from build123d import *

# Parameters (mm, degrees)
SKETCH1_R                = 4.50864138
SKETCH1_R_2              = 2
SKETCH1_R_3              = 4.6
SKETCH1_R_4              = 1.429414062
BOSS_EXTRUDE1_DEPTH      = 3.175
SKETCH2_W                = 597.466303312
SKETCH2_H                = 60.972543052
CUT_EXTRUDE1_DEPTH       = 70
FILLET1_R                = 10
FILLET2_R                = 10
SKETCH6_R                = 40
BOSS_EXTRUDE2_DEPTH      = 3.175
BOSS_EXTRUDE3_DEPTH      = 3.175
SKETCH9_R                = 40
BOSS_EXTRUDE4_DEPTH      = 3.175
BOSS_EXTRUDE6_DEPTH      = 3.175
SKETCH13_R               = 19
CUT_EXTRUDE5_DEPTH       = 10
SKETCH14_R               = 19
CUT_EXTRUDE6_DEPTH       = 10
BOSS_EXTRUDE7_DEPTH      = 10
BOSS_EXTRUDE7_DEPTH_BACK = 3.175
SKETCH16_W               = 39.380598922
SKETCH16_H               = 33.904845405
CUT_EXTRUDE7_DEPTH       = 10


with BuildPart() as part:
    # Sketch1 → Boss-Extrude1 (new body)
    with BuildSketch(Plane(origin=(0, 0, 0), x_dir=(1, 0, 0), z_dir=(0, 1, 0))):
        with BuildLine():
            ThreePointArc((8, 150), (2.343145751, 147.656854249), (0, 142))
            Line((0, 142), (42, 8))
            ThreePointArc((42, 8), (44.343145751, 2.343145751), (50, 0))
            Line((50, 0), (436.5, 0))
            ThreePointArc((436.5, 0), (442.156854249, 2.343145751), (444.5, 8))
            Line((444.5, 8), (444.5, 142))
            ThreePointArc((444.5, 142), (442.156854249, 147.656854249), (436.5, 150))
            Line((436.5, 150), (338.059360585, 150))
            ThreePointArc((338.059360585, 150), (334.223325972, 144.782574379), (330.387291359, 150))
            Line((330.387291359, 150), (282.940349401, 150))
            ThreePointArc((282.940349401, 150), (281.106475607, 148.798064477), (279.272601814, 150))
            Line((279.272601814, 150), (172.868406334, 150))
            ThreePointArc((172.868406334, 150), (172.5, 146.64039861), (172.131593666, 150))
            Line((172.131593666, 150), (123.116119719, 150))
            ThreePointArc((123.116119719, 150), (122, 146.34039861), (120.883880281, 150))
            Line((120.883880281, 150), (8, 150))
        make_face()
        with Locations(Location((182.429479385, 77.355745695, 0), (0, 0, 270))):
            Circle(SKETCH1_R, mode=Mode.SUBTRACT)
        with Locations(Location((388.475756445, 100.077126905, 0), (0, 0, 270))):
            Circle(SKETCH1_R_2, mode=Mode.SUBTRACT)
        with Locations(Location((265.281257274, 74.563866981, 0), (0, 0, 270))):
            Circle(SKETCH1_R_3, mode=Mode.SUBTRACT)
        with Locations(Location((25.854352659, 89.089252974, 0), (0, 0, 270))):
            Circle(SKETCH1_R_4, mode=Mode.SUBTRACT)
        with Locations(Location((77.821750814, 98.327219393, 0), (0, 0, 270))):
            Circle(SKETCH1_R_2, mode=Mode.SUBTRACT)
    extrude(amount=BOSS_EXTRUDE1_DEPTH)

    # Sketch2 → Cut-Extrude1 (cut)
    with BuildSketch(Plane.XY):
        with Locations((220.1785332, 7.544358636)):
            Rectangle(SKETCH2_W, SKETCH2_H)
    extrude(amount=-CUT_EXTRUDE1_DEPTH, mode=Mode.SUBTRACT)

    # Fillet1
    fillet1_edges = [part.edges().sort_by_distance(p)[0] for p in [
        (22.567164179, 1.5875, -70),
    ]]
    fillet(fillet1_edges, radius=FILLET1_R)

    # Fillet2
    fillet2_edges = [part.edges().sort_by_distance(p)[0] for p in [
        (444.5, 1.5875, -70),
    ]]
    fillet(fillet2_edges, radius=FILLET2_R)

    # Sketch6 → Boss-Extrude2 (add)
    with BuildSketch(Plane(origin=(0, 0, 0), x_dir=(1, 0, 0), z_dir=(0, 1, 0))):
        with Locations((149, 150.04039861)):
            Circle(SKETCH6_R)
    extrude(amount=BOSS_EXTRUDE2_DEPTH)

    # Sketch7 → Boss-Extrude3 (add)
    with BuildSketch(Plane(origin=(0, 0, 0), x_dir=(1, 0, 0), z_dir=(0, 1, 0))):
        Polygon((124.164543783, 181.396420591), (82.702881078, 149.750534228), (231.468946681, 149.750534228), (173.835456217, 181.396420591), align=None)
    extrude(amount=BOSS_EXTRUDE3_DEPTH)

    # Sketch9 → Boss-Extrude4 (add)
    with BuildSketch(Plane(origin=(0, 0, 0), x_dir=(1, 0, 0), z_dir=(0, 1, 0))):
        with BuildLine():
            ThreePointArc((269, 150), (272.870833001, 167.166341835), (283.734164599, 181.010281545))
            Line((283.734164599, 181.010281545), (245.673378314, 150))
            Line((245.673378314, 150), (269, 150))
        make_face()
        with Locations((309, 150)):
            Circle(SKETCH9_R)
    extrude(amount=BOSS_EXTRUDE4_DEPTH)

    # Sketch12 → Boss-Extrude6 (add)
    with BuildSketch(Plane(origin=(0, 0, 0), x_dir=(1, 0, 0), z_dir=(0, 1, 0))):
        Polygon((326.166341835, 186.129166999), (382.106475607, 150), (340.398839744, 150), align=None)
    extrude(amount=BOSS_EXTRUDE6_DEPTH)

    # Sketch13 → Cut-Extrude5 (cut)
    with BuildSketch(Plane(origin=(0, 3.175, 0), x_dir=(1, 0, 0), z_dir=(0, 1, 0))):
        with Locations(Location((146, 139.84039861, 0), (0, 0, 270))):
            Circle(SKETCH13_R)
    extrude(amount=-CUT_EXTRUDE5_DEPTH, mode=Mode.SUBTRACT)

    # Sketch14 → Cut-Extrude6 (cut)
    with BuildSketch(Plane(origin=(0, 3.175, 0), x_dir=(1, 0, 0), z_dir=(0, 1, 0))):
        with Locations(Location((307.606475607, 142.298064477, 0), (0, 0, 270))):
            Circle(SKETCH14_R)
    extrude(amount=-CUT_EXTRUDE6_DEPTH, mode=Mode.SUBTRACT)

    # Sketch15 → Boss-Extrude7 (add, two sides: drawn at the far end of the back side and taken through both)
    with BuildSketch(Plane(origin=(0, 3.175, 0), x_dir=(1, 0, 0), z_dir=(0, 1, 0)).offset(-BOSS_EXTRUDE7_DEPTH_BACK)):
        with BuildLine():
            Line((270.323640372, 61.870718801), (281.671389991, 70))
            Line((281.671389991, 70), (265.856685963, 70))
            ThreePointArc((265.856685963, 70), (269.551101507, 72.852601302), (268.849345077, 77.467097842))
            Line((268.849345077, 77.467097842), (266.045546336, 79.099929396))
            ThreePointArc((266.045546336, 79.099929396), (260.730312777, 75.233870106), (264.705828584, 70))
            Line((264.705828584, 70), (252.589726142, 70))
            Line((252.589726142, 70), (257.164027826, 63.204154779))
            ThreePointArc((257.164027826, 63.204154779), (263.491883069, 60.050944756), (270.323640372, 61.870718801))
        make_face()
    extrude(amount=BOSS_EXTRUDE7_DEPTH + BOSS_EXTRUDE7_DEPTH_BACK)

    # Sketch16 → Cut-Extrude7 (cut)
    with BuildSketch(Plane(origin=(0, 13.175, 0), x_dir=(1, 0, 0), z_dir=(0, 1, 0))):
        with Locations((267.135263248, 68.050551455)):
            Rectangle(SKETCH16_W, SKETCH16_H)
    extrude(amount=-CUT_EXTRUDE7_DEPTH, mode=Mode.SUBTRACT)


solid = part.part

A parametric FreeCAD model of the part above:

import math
import FreeCAD as App
import Part
import Sketcher
Q = App.Units.Quantity


def edges_at(feature, points):
    """Names of the edges that pass closest to the given points."""
    edges = feature.Shape.Edges
    near = lambda p: min(range(len(edges)), key=lambda i: edges[i].distToShape(Part.Vertex(*p))[0])
    return sorted({f"Edge{near(p) + 1}" for p in points})


def add_polygon(sketch, points):
    """Adds a closed chain of lines whose ends are joined by coincident constraints."""
    first, n = sketch.GeometryCount, len(points)
    for a, b in zip(points, points[1:] + points[:1]):
        sketch.addGeometry(Part.LineSegment(App.Vector(*a, 0), App.Vector(*b, 0)), False)
    for i in range(n):
        sketch.addConstraint(Sketcher.Constraint("Coincident", first + i, 2, first + (i + 1) % n, 1))

doc = App.newDocument("Part")
body = doc.addObject("PartDesign::Body", "Body")

# Sketch on XZ plane
sketch1 = body.newObject("Sketcher::SketchObject", "Sketch")
sketch1.AttachmentSupport = (doc.getObject("XZ_Plane"), [""])
sketch1.MapMode = "FlatFace"
sketch1.addGeometry([
    Part.ArcOfCircle(Part.Circle(App.Vector(8, -142, 0), App.Vector(0, 0, 1), 8), math.radians(-180), math.radians(-90)),  # 0
    Part.LineSegment(App.Vector(0, -142, 0), App.Vector(42, -8, 0)),  # 1
    Part.ArcOfCircle(Part.Circle(App.Vector(50, -8, 0), App.Vector(0, 0, 1), 8), math.radians(90), math.radians(180)),  # 2
    Part.LineSegment(App.Vector(50, 0, 0), App.Vector(436.5, 0, 0)),  # 3
    Part.ArcOfCircle(Part.Circle(App.Vector(436.5, -8, 0), App.Vector(0, 0, 1), 8), math.radians(0), math.radians(90)),  # 4
    Part.LineSegment(App.Vector(444.5, -8, 0), App.Vector(444.5, -142, 0)),  # 5
    Part.ArcOfCircle(Part.Circle(App.Vector(436.5, -142, 0), App.Vector(0, 0, 1), 8), math.radians(-90), math.radians(0)),  # 6
    Part.LineSegment(App.Vector(436.5, -150, 0), App.Vector(338.1, -150, 0)),  # 7
    Part.ArcOfCircle(Part.Circle(App.Vector(334.2, -148.8, 0), App.Vector(0, 0, 1), 4), math.radians(-17), math.radians(197)),  # 8
    Part.LineSegment(App.Vector(330.4, -150, 0), App.Vector(282.9, -150, 0)),  # 9
    Part.ArcOfCircle(Part.Circle(App.Vector(281.1, -150.8, 0), App.Vector(0, 0, 1), 2), math.radians(24), math.radians(156)),  # 10
    Part.LineSegment(App.Vector(279.3, -150, 0), App.Vector(172.9, -150, 0)),  # 11
    Part.ArcOfCircle(Part.Circle(App.Vector(172.5, -148.3, 0), App.Vector(0, 0, 1), 1.7), math.radians(-77), math.radians(257)),  # 12
    Part.LineSegment(App.Vector(172.1, -150, 0), App.Vector(123.1, -150, 0)),  # 13
    Part.ArcOfCircle(Part.Circle(App.Vector(122, -148.3, 0), App.Vector(0, 0, 1), 2), math.radians(-56), math.radians(236)),  # 14
    Part.LineSegment(App.Vector(120.9, -150, 0), App.Vector(8, -150, 0)),  # 15
    Part.Circle(App.Vector(182.4, -77.4, 0), App.Vector(0, 0, 1), 4.5),  # 16
    Part.Circle(App.Vector(265.3, -74.6, 0), App.Vector(0, 0, 1), 4.6),  # 17
    Part.Circle(App.Vector(25.9, -89.1, 0), App.Vector(0, 0, 1), 1.4),  # 18
    Part.Circle(App.Vector(77.8, -98.3, 0), App.Vector(0, 0, 1), 2),  # 19
    Part.Circle(App.Vector(388.5, -100.1, 0), App.Vector(0, 0, 1), 2),  # 20
], False)
sketch1.addConstraint([
    Sketcher.Constraint("Coincident", 0, 1, 1, 1),
    Sketcher.Constraint("Coincident", 1, 2, 2, 2),
    Sketcher.Constraint("Tangent", 2, 1, 3, 1),
    Sketcher.Constraint("Tangent", 3, 2, 4, 2),
    Sketcher.Constraint("Tangent", 4, 1, 5, 1),
    Sketcher.Constraint("Tangent", 5, 2, 6, 2),
    Sketcher.Constraint("Tangent", 6, 1, 7, 1),
    Sketcher.Constraint("Coincident", 7, 2, 8, 1),
    Sketcher.Constraint("Coincident", 8, 2, 9, 1),
    Sketcher.Constraint("Coincident", 9, 2, 10, 1),
    Sketcher.Constraint("Coincident", 10, 2, 11, 1),
    Sketcher.Constraint("Coincident", 11, 2, 12, 1),
    Sketcher.Constraint("Coincident", 12, 2, 13, 1),
    Sketcher.Constraint("Coincident", 13, 2, 14, 1),
    Sketcher.Constraint("Coincident", 14, 2, 15, 1),
    Sketcher.Constraint("Tangent", 15, 2, 0, 2),
    Sketcher.Constraint("Horizontal", 3),
    Sketcher.Constraint("Vertical", 5),
    Sketcher.Constraint("Horizontal", 7),
    Sketcher.Constraint("Horizontal", 9),
    Sketcher.Constraint("Horizontal", 11),
    Sketcher.Constraint("Horizontal", 13),
    Sketcher.Constraint("Horizontal", 15),
    Sketcher.Constraint("Equal", 0, 2),
    Sketcher.Constraint("Equal", 2, 4),
    Sketcher.Constraint("Equal", 4, 6),
    Sketcher.Constraint("Equal", 10, 14),
    Sketcher.Constraint("Equal", 14, 19),
    Sketcher.Constraint("Equal", 19, 20),
    Sketcher.Constraint("PointOnObject", 0, 1, -2),
    Sketcher.Constraint("PointOnObject", 2, 1, -1),
    Sketcher.Constraint("Horizontal", 0, 3, 6, 3),
    Sketcher.Constraint("Horizontal", 12, 3, 14, 3),
    Sketcher.Constraint("Horizontal", 6, 3, 0, 1),
    Sketcher.Constraint("Horizontal", 4, 3, 1, 2),
    Sketcher.Constraint("Horizontal", 7, 2, 8, 2),
    Sketcher.Constraint("Horizontal", 9, 2, 10, 2),
    Sketcher.Constraint("Horizontal", 11, 2, 12, 2),
    Sketcher.Constraint("Diameter", 19, Q("4 mm")),
    Sketcher.Constraint("Radius", 0, Q("8 mm")),
    Sketcher.Constraint("Diameter", 17, Q("9.2 mm")),
    Sketcher.Constraint("Radius", 12, Q("1.7 mm")),
    Sketcher.Constraint("DistanceY", 5, 2, 5, 1, Q("134 mm")),
    Sketcher.Constraint("DistanceX", 3, 1, 3, 2, Q("386.5 mm")),
    Sketcher.Constraint("DistanceX", -1, 1, 2, 3, Q("50 mm")),
    Sketcher.Constraint("DistanceX", -1, 1, 14, 3, Q("122 mm")),
    Sketcher.Constraint("DistanceX", 12, 3, 6, 3, Q("264 mm")),
    Sketcher.Constraint("Diameter", 18, Q("2.858828 mm")),
    Sketcher.Constraint("Diameter", 16, Q("9.017283 mm")),
    Sketcher.Constraint("Radius", 8, Q("4.018907 mm")),
    Sketcher.Constraint("DistanceX", 7, 2, 7, 1, Q("98.440639 mm")),
    Sketcher.Constraint("DistanceX", 9, 2, 9, 1, Q("47.446942 mm")),
    Sketcher.Constraint("DistanceX", 15, 2, 15, 1, Q("112.88388 mm")),
    Sketcher.Constraint("DistanceX", -1, 1, 10, 2, Q("279.272602 mm")),
    Sketcher.Constraint("DistanceX", 18, 3, 19, 3, Q("51.967398 mm")),
    Sketcher.Constraint("DistanceX", 17, 3, 20, 3, Q("123.194499 mm")),
    Sketcher.Constraint("DistanceY", 8, 3, -1, 1, Q("148.801481 mm")),
    Sketcher.Constraint("DistanceX", -1, 1, 16, 3, Q("182.429479 mm")),
    Sketcher.Constraint("DistanceX", -1, 1, 19, 3, Q("77.821751 mm")),
    Sketcher.Constraint("DistanceY", 19, 3, -1, 1, Q("98.327219 mm")),
    Sketcher.Constraint("DistanceY", 10, 3, 16, 3, Q("73.442319 mm")),
    Sketcher.Constraint("DistanceX", 17, 3, 10, 3, Q("15.825218 mm")),
    Sketcher.Constraint("DistanceY", 16, 3, 17, 3, Q("2.791879 mm")),
    Sketcher.Constraint("DistanceY", 20, 3, 17, 3, Q("25.51326 mm")),
    Sketcher.Constraint("DistanceY", 18, 3, -1, 1, Q("89.089253 mm")),
])
pad1 = body.newObject("PartDesign::Pad", "Pad")
pad1.Profile = sketch1
pad1.Length = 3.175
pad1.Reversed = True

# Sketch on XY plane
sketch2 = body.newObject("Sketcher::SketchObject", "Sketch001")
sketch2.AttachmentSupport = (doc.getObject("XY_Plane"), [""])
sketch2.MapMode = "FlatFace"
add_polygon(sketch2, [(-79, 38), (-79, -23), (519, -23), (519, 38)])  # lines 0-3
sketch2.addConstraint([
    Sketcher.Constraint("Vertical", 0),
    Sketcher.Constraint("Horizontal", 1),
    Sketcher.Constraint("Vertical", 2),
    Sketcher.Constraint("Horizontal", 3),
    Sketcher.Constraint("DistanceX", 1, 1, 1, 2, Q("597.466303 mm")),
    Sketcher.Constraint("DistanceY", 0, 2, 0, 1, Q("60.972543 mm")),
    Sketcher.Constraint("DistanceX", 0, 2, -1, 1, Q("78.554618 mm")),
    Sketcher.Constraint("DistanceY", -1, 1, 2, 2, Q("38.03063 mm")),
])
pocket1 = body.newObject("PartDesign::Pocket", "Pocket")
pocket1.Profile = sketch2
pocket1.Length = 70
doc.recompute()

fillet = body.newObject("PartDesign::Fillet", "Fillet")
fillet.Base = (pocket1, edges_at(pocket1, [(22.567, 1.587, -70)]))
fillet.Radius = 10
doc.recompute()

fillet2 = body.newObject("PartDesign::Fillet", "Fillet001")
fillet2.Base = (fillet, edges_at(fillet, [(444.5, 1.587, -70)]))
fillet2.Radius = 10

# Sketch on XZ plane
sketch3 = body.newObject("Sketcher::SketchObject", "Sketch002")
sketch3.AttachmentSupport = (doc.getObject("XZ_Plane"), [""])
sketch3.MapMode = "FlatFace"
sketch3.addGeometry(Part.Circle(App.Vector(149, -150, 0), App.Vector(0, 0, 1), 40), False)
sketch3.addConstraint([
    Sketcher.Constraint("Diameter", 0, Q("80 mm")),
    Sketcher.Constraint("DistanceX", -1, 1, 0, 3, Q("149 mm")),
    Sketcher.Constraint("DistanceY", 0, 3, -1, 1, Q("150.040399 mm")),
])
pad2 = body.newObject("PartDesign::Pad", "Pad001")
pad2.Profile = sketch3
pad2.Length = 3.175
pad2.Reversed = True

# Sketch on XZ plane
sketch4 = body.newObject("Sketcher::SketchObject", "Sketch003")
sketch4.AttachmentSupport = (doc.getObject("XZ_Plane"), [""])
sketch4.MapMode = "FlatFace"
add_polygon(sketch4, [(124, -181), (83, -150), (231, -150), (174, -181)])  # lines 0-3
sketch4.addConstraint([
    Sketcher.Constraint("Horizontal", 1),
    Sketcher.Constraint("Horizontal", 3),
    Sketcher.Constraint("DistanceX", 1, 1, 1, 2, Q("148.766066 mm")),
    Sketcher.Constraint("DistanceX", 3, 2, 3, 1, Q("49.670912 mm")),
    Sketcher.Constraint("DistanceX", -1, 1, 0, 2, Q("82.702881 mm")),
    Sketcher.Constraint("DistanceY", 2, 2, -1, 1, Q("181.396421 mm")),
    Sketcher.Constraint("DistanceX", 2, 2, 1, 2, Q("57.63349 mm")),
    Sketcher.Constraint("Distance", 0, Q("52.158715 mm")),
])
pad3 = body.newObject("PartDesign::Pad", "Pad002")
pad3.Profile = sketch4
pad3.Length = 3.175
pad3.Reversed = True

# Sketch on XZ plane
sketch5 = body.newObject("Sketcher::SketchObject", "Sketch004")
sketch5.AttachmentSupport = (doc.getObject("XZ_Plane"), [""])
sketch5.MapMode = "FlatFace"
sketch5.addGeometry([
    Part.LineSegment(App.Vector(284, -181, 0), App.Vector(246, -150, 0)),
    Part.LineSegment(App.Vector(246, -150, 0), App.Vector(269, -150, 0)),
    Part.ArcOfCircle(Part.Circle(App.Vector(309, -150, 0), App.Vector(0, 0, 1), 40), math.radians(-129), math.radians(180)),
], False)
sketch5.addConstraint([
    Sketcher.Constraint("Coincident", 0, 2, 1, 1),
    Sketcher.Constraint("Coincident", 1, 2, 2, 2),
    Sketcher.Constraint("Tangent", 2, 1, 0, 1),
    Sketcher.Constraint("Horizontal", 1),
    Sketcher.Constraint("Horizontal", 2, 3, 0, 2),
    Sketcher.Constraint("Radius", 2, Q("40 mm")),
    Sketcher.Constraint("DistanceX", -1, 1, 2, 3, Q("309 mm")),
    Sketcher.Constraint("DistanceY", 2, 3, -1, 1, Q("150 mm")),
    Sketcher.Constraint("DistanceX", 1, 1, 1, 2, Q("23.326622 mm")),
])
pad4 = body.newObject("PartDesign::Pad", "Pad003")
pad4.Profile = sketch5
pad4.Length = 3.175
pad4.Reversed = True

# Sketch on XZ plane
sketch6 = body.newObject("Sketcher::SketchObject", "Sketch005")
sketch6.AttachmentSupport = (doc.getObject("XZ_Plane"), [""])
sketch6.MapMode = "FlatFace"
add_polygon(sketch6, [(382, -150), (326, -186), (340, -150)])  # lines 0-2
sketch6.addConstraint([
    Sketcher.Constraint("Horizontal", 2),
    Sketcher.Constraint("DistanceY", 1, 2, -1, 1, Q("150 mm")),
    Sketcher.Constraint("Distance", 1, Q("38.83144 mm")),
    Sketcher.Constraint("DistanceX", 2, 1, 2, 2, Q("41.707636 mm")),
    Sketcher.Constraint("DistanceX", -1, 1, 0, 2, Q("326.166342 mm")),
    Sketcher.Constraint("DistanceX", -1, 1, 1, 2, Q("340.39884 mm")),
])
pad5 = body.newObject("PartDesign::Pad", "Pad004")
pad5.Profile = sketch6
pad5.Length = 3.175
pad5.Reversed = True

# Sketch on XZ plane
sketch7 = body.newObject("Sketcher::SketchObject", "Sketch006")
sketch7.AttachmentSupport = (doc.getObject("XZ_Plane"), [""])
sketch7.MapMode = "FlatFace"
sketch7.AttachmentOffset = App.Placement(App.Vector(0, 0, -3.175), App.Rotation())
sketch7.addGeometry(Part.Circle(App.Vector(146, -140, 0), App.Vector(0, 0, 1), 19), False)
sketch7.addConstraint([
    Sketcher.Constraint("Diameter", 0, Q("38 mm")),
    Sketcher.Constraint("DistanceX", -1, 1, 0, 3, Q("146 mm")),
    Sketcher.Constraint("DistanceY", 0, 3, -1, 1, Q("139.840399 mm")),
])
pocket2 = body.newObject("PartDesign::Pocket", "Pocket001")
pocket2.Profile = sketch7
pocket2.Length = 10
pocket2.Reversed = True

# Sketch on XZ plane
sketch8 = body.newObject("Sketcher::SketchObject", "Sketch007")
sketch8.AttachmentSupport = (doc.getObject("XZ_Plane"), [""])
sketch8.MapMode = "FlatFace"
sketch8.AttachmentOffset = App.Placement(App.Vector(0, 0, -3.175), App.Rotation())
sketch8.addGeometry(Part.Circle(App.Vector(308, -142, 0), App.Vector(0, 0, 1), 19), False)
sketch8.addConstraint([
    Sketcher.Constraint("Diameter", 0, Q("38 mm")),
    Sketcher.Constraint("DistanceX", -1, 1, 0, 3, Q("307.606476 mm")),
    Sketcher.Constraint("DistanceY", 0, 3, -1, 1, Q("142.298064 mm")),
])
pocket3 = body.newObject("PartDesign::Pocket", "Pocket002")
pocket3.Profile = sketch8
pocket3.Length = 10
pocket3.Reversed = True

# Sketch on XZ plane
sketch9 = body.newObject("Sketcher::SketchObject", "Sketch008")
sketch9.AttachmentSupport = (doc.getObject("XZ_Plane"), [""])
sketch9.MapMode = "FlatFace"
sketch9.AttachmentOffset = App.Placement(App.Vector(0, 0, -3.175), App.Rotation())
sketch9.addGeometry([
    Part.LineSegment(App.Vector(270.3, -61.9, 0), App.Vector(281.7, -70, 0)),  # 0
    Part.LineSegment(App.Vector(281.7, -70, 0), App.Vector(265.9, -70, 0)),  # 1
    Part.ArcOfCircle(Part.Circle(App.Vector(265.3, -74.6, 0), App.Vector(0, 0, 1), 4.6), math.radians(-39), math.radians(83)),  # 2
    Part.LineSegment(App.Vector(268.8, -77.5, 0), App.Vector(266, -79.1, 0)),  # 3
    Part.ArcOfCircle(Part.Circle(App.Vector(265.3, -74.6, 0), App.Vector(0, 0, 1), 4.6), math.radians(97), math.radians(280)),  # 4
    Part.LineSegment(App.Vector(264.7, -70, 0), App.Vector(252.6, -70, 0)),  # 5
    Part.LineSegment(App.Vector(252.6, -70, 0), App.Vector(257.2, -63.2, 0)),  # 6
    Part.ArcOfCircle(Part.Circle(App.Vector(264.5, -70, 0), App.Vector(0, 0, 1), 10), math.radians(54), math.radians(137)),  # 7
], False)
sketch9.addConstraint([
    Sketcher.Constraint("Coincident", 0, 2, 1, 1),
    Sketcher.Constraint("Coincident", 1, 2, 2, 2),
    Sketcher.Constraint("Coincident", 2, 1, 3, 1),
    Sketcher.Constraint("Coincident", 3, 2, 4, 2),
    Sketcher.Constraint("Coincident", 4, 1, 5, 1),
    Sketcher.Constraint("Coincident", 5, 2, 6, 1),
    Sketcher.Constraint("Coincident", 6, 2, 7, 2),
    Sketcher.Constraint("Tangent", 7, 1, 0, 1),
    Sketcher.Constraint("Horizontal", 1),
    Sketcher.Constraint("Horizontal", 5),
    Sketcher.Constraint("Coincident", 4, 3, 2, 3),
    Sketcher.Constraint("Equal", 2, 4),
    Sketcher.Constraint("Horizontal", 7, 3, 0, 2),
    Sketcher.Constraint("Horizontal", 1, 2, 4, 1),
    Sketcher.Constraint("Radius", 7, Q("10 mm")),
    Sketcher.Constraint("Radius", 2, Q("4.6 mm")),
    Sketcher.Constraint("DistanceY", 7, 3, -1, 1, Q("70 mm")),
    Sketcher.Constraint("DistanceX", -1, 1, 7, 3, Q("264.5 mm")),
    Sketcher.Constraint("Distance", 3, Q("3.2446 mm")),
    Sketcher.Constraint("DistanceX", 3, 2, 2, 1, Q("2.803799 mm")),
    Sketcher.Constraint("DistanceX", 5, 2, 6, 2, Q("4.574302 mm")),
    Sketcher.Constraint("DistanceX", 6, 2, 4, 1, Q("7.541801 mm")),
    Sketcher.Constraint("Distance", 6, Q("8.191932 mm")),
    Sketcher.Constraint("DistanceX", 1, 2, 1, 1, Q("15.814704 mm")),
    Sketcher.Constraint("DistanceX", -1, 1, 0, 2, Q("281.67139 mm")),
])
pad6 = body.newObject("PartDesign::Pad", "Pad005")
pad6.Profile = sketch9
pad6.Type = "TwoLengths"
pad6.Length = 10
pad6.Length2 = 3.175
pad6.Reversed = True

# Sketch on XZ plane
sketch10 = body.newObject("Sketcher::SketchObject", "Sketch009")
sketch10.AttachmentSupport = (doc.getObject("XZ_Plane"), [""])
sketch10.MapMode = "FlatFace"
sketch10.AttachmentOffset = App.Placement(App.Vector(0, 0, -13.175), App.Rotation())
add_polygon(sketch10, [(247, -85), (247, -51), (287, -51), (287, -85)])  # lines 0-3
sketch10.addConstraint([
    Sketcher.Constraint("Vertical", 0),
    Sketcher.Constraint("Horizontal", 1),
    Sketcher.Constraint("Vertical", 2),
    Sketcher.Constraint("Horizontal", 3),
    Sketcher.Constraint("DistanceX", 1, 1, 1, 2, Q("39.380599 mm")),
    Sketcher.Constraint("DistanceY", 0, 1, 0, 2, Q("33.904845 mm")),
    Sketcher.Constraint("DistanceY", 0, 2, -1, 1, Q("51.098129 mm")),
    Sketcher.Constraint("DistanceX", -1, 1, 0, 2, Q("247.444964 mm")),
])
pocket4 = body.newObject("PartDesign::Pocket", "Pocket003")
pocket4.Profile = sketch10
pocket4.Length = 10
pocket4.Reversed = True

doc.recompute()
